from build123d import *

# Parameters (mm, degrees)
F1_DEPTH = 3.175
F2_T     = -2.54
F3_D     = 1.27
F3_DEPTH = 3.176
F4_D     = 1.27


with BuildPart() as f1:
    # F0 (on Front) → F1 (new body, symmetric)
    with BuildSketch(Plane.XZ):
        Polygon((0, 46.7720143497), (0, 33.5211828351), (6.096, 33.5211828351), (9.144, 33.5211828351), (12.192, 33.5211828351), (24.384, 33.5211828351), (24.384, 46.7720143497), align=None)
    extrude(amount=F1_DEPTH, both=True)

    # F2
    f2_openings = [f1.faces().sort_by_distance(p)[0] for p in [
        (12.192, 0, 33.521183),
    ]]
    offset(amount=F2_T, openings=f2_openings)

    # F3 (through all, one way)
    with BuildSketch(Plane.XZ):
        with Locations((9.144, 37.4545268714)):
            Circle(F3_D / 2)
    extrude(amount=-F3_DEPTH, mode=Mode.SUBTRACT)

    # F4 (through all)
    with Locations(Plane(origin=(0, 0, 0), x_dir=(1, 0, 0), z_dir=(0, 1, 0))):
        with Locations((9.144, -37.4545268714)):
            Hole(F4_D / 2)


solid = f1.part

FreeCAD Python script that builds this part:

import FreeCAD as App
import Part
import Sketcher
Q = App.Units.Quantity


def faces_at(feature, points):
    """Names of the faces that lie closest to the given points."""
    faces = feature.Shape.Faces
    near = lambda p: min(range(len(faces)), key=lambda i: faces[i].distToShape(Part.Vertex(*p))[0])
    return sorted({f"Face{near(p) + 1}" for p in points})

doc = App.newDocument("Part")
body = doc.addObject("PartDesign::Body", "Body")

sketch1 = body.newObject("Sketcher::SketchObject", "Sketch")
sketch1.AttachmentSupport = (doc.getObject("XZ_Plane"), [""])
sketch1.MapMode = "FlatFace"
sketch1.addGeometry([
    Part.LineSegment(App.Vector(0, 47, 0), App.Vector(0, 34, 0)),
    Part.LineSegment(App.Vector(0, 34, 0), App.Vector(24, 34, 0)),
    Part.LineSegment(App.Vector(24, 34, 0), App.Vector(24, 47, 0)),
    Part.LineSegment(App.Vector(24, 47, 0), App.Vector(0, 47, 0)),
], False)
sketch1.addConstraint([
    Sketcher.Constraint("Coincident", 0, 2, 1, 1),
    Sketcher.Constraint("Coincident", 1, 2, 2, 1),
    Sketcher.Constraint("Coincident", 2, 2, 3, 1),
    Sketcher.Constraint("Coincident", 3, 2, 0, 1),
    Sketcher.Constraint("Vertical", 0),
    Sketcher.Constraint("Horizontal", 1),
    Sketcher.Constraint("Vertical", 2),
    Sketcher.Constraint("Horizontal", 3),
    Sketcher.Constraint("PointOnObject", 0, 2, -2),
    Sketcher.Constraint("DistanceX", 1, 1, 1, 2, Q("0.96 in")),
    Sketcher.Constraint("DistanceY", 0, 2, 0, 1, Q("13.250832 mm")),
    Sketcher.Constraint("DistanceY", -1, 1, 0, 2, Q("33.521183 mm")),
])
pad1 = body.newObject("PartDesign::Pad", "Pad")
pad1.Profile = sketch1
pad1.Length = Q("0.25 in")
pad1.Midplane = True
doc.recompute()

thickness = body.newObject("PartDesign::Thickness", "Thickness")
thickness.Base = (pad1, faces_at(pad1, [(12.192, 0, 33.521)]))
thickness.Value = Q("0.1 in")
thickness.Reversed = True
thickness.Join = "Arc"

sketch2 = body.newObject("Sketcher::SketchObject", "Sketch001")
sketch2.AttachmentSupport = (doc.getObject("XZ_Plane"), [""])
sketch2.MapMode = "FlatFace"
sketch2.addGeometry(Part.Circle(App.Vector(9.1, 37.5, 0), App.Vector(0, 0, 1), 0.6), False)
sketch2.addConstraint([
    Sketcher.Constraint("Diameter", 0, Q("0.05 in")),
    Sketcher.Constraint("DistanceX", -1, 1, 0, 3, Q("0.36 in")),
    Sketcher.Constraint("DistanceY", -1, 1, 0, 3, Q("37.454527 mm")),
])
pocket1 = body.newObject("PartDesign::Pocket", "Pocket")
pocket1.Profile = sketch2
pocket1.Type = "ThroughAll"

sketch3 = body.newObject("Sketcher::SketchObject", "Sketch002")
sketch3.AttachmentSupport = (doc.getObject("XZ_Plane"), [""])
sketch3.MapMode = "FlatFace"
sketch3.addGeometry(Part.Circle(App.Vector(9.1, 37.5, 0), App.Vector(0, 0, 1), 0.6), False)
sketch3.addConstraint([
    Sketcher.Constraint("Diameter", 0, Q("0.05 in")),
    Sketcher.Constraint("DistanceX", -1, 1, 0, 3, Q("0.36 in")),
    Sketcher.Constraint("DistanceY", -1, 1, 0, 3, Q("37.454527 mm")),
])
doc.recompute()
hole = body.newObject("PartDesign::Hole", "Hole")
hole.Profile = sketch3
hole.ThreadType = "None"
hole.Diameter = Q("0.05 in")
hole.DepthType = "ThroughAll"
hole.Reversed = True

doc.recompute()
